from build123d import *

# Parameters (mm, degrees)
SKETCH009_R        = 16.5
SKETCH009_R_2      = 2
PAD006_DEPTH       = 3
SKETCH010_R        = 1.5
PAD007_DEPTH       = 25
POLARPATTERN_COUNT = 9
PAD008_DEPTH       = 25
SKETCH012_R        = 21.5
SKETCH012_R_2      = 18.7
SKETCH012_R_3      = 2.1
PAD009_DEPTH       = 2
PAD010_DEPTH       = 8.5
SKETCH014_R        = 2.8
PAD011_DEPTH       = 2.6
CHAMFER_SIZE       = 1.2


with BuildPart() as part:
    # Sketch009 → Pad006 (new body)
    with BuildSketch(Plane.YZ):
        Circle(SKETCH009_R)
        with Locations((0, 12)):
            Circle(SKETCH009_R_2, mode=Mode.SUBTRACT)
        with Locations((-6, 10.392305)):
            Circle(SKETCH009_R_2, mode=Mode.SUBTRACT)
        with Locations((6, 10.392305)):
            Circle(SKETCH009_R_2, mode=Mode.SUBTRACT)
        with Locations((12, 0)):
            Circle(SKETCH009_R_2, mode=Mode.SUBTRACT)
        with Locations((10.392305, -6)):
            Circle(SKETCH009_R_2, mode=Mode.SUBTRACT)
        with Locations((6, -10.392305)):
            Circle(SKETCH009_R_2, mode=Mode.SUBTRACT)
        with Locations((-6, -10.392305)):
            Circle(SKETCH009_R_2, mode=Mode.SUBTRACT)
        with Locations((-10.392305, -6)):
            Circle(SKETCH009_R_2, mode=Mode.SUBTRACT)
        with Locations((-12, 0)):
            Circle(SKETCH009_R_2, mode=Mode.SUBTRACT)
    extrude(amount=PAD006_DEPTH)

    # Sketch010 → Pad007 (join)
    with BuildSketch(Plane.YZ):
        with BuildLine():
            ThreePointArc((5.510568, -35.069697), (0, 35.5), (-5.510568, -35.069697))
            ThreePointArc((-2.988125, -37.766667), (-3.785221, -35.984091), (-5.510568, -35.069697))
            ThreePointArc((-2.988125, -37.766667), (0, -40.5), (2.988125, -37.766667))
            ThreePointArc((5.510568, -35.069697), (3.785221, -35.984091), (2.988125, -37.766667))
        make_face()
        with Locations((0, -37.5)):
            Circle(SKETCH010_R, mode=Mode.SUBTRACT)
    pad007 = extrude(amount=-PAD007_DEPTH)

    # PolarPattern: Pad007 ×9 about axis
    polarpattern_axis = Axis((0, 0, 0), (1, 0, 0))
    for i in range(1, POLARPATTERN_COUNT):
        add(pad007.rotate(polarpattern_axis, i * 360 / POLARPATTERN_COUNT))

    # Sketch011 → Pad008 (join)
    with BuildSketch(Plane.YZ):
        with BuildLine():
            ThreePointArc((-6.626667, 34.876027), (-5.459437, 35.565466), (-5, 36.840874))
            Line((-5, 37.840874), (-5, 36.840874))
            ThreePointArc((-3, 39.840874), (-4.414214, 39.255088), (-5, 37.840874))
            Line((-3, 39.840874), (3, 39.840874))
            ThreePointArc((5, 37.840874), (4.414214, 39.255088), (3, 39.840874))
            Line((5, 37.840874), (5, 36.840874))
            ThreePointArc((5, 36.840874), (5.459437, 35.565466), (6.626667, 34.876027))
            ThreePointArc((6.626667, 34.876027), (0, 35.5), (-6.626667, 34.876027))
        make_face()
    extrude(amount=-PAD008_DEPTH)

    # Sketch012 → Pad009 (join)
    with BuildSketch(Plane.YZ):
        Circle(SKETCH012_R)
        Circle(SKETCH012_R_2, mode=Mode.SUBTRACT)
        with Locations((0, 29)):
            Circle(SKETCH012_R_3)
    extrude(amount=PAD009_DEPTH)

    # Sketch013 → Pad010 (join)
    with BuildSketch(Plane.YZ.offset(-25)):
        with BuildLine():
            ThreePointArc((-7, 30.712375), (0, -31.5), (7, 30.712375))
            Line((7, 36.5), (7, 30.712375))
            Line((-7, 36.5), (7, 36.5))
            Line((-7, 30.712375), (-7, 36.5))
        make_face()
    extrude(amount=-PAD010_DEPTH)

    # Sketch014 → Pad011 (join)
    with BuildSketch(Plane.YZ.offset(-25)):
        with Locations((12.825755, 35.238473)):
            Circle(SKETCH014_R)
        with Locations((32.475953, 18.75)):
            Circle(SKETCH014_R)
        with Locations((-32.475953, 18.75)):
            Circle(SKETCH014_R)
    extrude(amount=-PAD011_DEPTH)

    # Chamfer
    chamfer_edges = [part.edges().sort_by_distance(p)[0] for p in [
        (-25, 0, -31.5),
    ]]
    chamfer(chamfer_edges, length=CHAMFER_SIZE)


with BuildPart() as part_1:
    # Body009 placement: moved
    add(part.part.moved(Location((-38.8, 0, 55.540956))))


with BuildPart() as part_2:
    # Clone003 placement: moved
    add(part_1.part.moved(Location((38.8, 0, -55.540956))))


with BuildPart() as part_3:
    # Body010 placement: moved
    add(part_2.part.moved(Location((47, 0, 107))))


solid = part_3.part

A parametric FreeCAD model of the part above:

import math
import FreeCAD as App
import Part
import Sketcher
from FreeCAD import Vector
Q = App.Units.Quantity


def edges_at(feature, points):
    """Names of the edges that pass closest to the given points."""
    edges = feature.Shape.Edges
    near = lambda p: min(range(len(edges)), key=lambda i: edges[i].distToShape(Part.Vertex(*p))[0])
    return sorted({f"Edge{near(p) + 1}" for p in points})

doc = App.newDocument("Part")
body = doc.addObject("PartDesign::Body", "Body")

# Sketch on YZ plane
sketch1 = body.newObject("Sketcher::SketchObject", "Sketch")
sketch1.AttachmentSupport = (doc.getObject("YZ_Plane"), [""])
sketch1.MapMode = "FlatFace"
sketch1.addGeometry([
    Part.Circle(Vector(0, 0, 0), Vector(0, 0, 1), 16.5),  # 0
    Part.Circle(Vector(-10.4, -6, 0), Vector(0, 0, 1), 2),  # 1
    Part.Circle(Vector(-6, -10.4, 0), Vector(0, 0, 1), 2),  # 2
    Part.Circle(Vector(-12, 0, 0), Vector(0, 0, 1), 2),  # 3
    Part.Circle(Vector(6, -10.4, 0), Vector(0, 0, 1), 2),  # 4
    Part.Circle(Vector(10.4, -6, 0), Vector(0, 0, 1), 2),  # 5
    Part.Circle(Vector(12, 0, 0), Vector(0, 0, 1), 2),  # 6
    Part.Circle(Vector(-6, 10.4, 0), Vector(0, 0, 1), 2),  # 7
    Part.Circle(Vector(6, 10.4, 0), Vector(0, 0, 1), 2),  # 8
    Part.Circle(Vector(0, 12, 0), Vector(0, 0, 1), 2),  # 9
], False)
sketch1.addConstraint([
    Sketcher.Constraint("Coincident", 0, 3, -1, 1),
    Sketcher.Constraint("Equal", 1, 2),
    Sketcher.Constraint("Equal", 2, 3),
    Sketcher.Constraint("Equal", 3, 4),
    Sketcher.Constraint("Equal", 4, 5),
    Sketcher.Constraint("Equal", 5, 6),
    Sketcher.Constraint("Equal", 6, 7),
    Sketcher.Constraint("Equal", 7, 8),
    Sketcher.Constraint("Equal", 8, 9),
    Sketcher.Constraint("Symmetric", 3, 3, 6, 3, -1, 1),
    Sketcher.Constraint("Symmetric", 4, 3, 7, 3, -1, 1),
    Sketcher.Constraint("Symmetric", 2, 3, 8, 3, -1, 1),
    Sketcher.Constraint("Symmetric", 2, 3, 4, 3, -2),
    Sketcher.Constraint("Symmetric", 1, 3, 5, 3, -2),
    Sketcher.Constraint("PointOnObject", 3, 3, -1),
    Sketcher.Constraint("PointOnObject", 9, 3, -2),
    Sketcher.Constraint("Diameter", 0, Q("33 mm")),
    Sketcher.Constraint("Diameter", 1, Q("4 mm")),
    Sketcher.Constraint("DistanceY", 1, 3, -1, 1, Q("6 mm")),
    Sketcher.Constraint("DistanceX", 2, 3, -1, 1, Q("6 mm")),
    Sketcher.Constraint("DistanceX", 3, 3, -1, 1, Q("12 mm")),
    Sketcher.Constraint("DistanceY", -1, 1, 9, 3, Q("12 mm")),
    Sketcher.Constraint("DistanceX", 1, 3, 5, 3, Q("20.78461 mm")),
    Sketcher.Constraint("DistanceY", 2, 3, 7, 3, Q("20.78461 mm")),
])
pad1 = body.newObject("PartDesign::Pad", "Pad")
pad1.Profile = sketch1
pad1.Length = 3

# Sketch on YZ plane
sketch2 = body.newObject("Sketcher::SketchObject", "Sketch001")
sketch2.AttachmentSupport = (doc.getObject("YZ_Plane"), [""])
sketch2.MapMode = "FlatFace"
sketch2.addGeometry([
    Part.ArcOfCircle(Part.Circle(Vector(0, 0, 0), Vector(0, 0, 1), 35.5), math.radians(-81), math.radians(261)),  # 0
    Part.ArcOfCircle(Part.Circle(Vector(-6, -38, 0), Vector(0, 0, 1), 3), math.radians(5), math.radians(81)),  # 1
    Part.ArcOfCircle(Part.Circle(Vector(0, -37.5, 0), Vector(0, 0, 1), 3), math.radians(-175), math.radians(-5)),  # 2
    Part.ArcOfCircle(Part.Circle(Vector(6, -38, 0), Vector(0, 0, 1), 3), math.radians(99), math.radians(175)),  # 3
    Part.Circle(Vector(0, -37.5, 0), Vector(0, 0, 1), 1.5),  # 4
], False)
sketch2.addConstraint([
    Sketcher.Constraint("Tangent", 0, 2, 1, 2),
    Sketcher.Constraint("Tangent", 1, 1, 2, 1),
    Sketcher.Constraint("Tangent", 2, 2, 3, 2),
    Sketcher.Constraint("Tangent", 3, 1, 0, 1),
    Sketcher.Constraint("Coincident", 0, 3, -1, 1),
    Sketcher.Constraint("Coincident", 4, 3, 2, 3),
    Sketcher.Constraint("Equal", 1, 2),
    Sketcher.Constraint("Equal", 2, 3),
    Sketcher.Constraint("PointOnObject", 2, 3, -2),
    Sketcher.Constraint("Diameter", 4, Q("3 mm")),
    Sketcher.Constraint("Radius", 1, Q("2.999999 mm")),
    Sketcher.Constraint("Radius", 0, Q("35.5 mm")),
    Sketcher.Constraint("DistanceY", 2, 3, -1, 1, Q("37.5 mm")),
])
pad2 = body.newObject("PartDesign::Pad", "Pad001")
pad2.Profile = sketch2
pad2.Length = 25
pad2.Reversed = True
doc.recompute()

polarpattern = body.newObject("PartDesign::PolarPattern", "PolarPattern")
polarpattern.Originals = [pad2]
polarpattern.Axis = (doc.getObject("X_Axis"), [""])
polarpattern.Angle = 360
polarpattern.Occurrences = 9
body.Tip = polarpattern

# Sketch on YZ plane
sketch3 = body.newObject("Sketcher::SketchObject", "Sketch002")
sketch3.AttachmentSupport = (doc.getObject("YZ_Plane"), [""])
sketch3.MapMode = "FlatFace"
sketch3.addGeometry([
    Part.ArcOfCircle(Part.Circle(Vector(-7, 36.8, 0), Vector(0, 0, 1), 2), math.radians(-79), math.radians(0)),  # 0
    Part.ArcOfCircle(Part.Circle(Vector(0, 0, 0), Vector(0, 0, 1), 35.5), math.radians(79), math.radians(101)),  # 1
    Part.ArcOfCircle(Part.Circle(Vector(7, 36.8, 0), Vector(0, 0, 1), 2), math.radians(-180), math.radians(-101)),  # 2
    Part.LineSegment(Vector(5, 36.8, 0), Vector(5, 37.8, 0)),  # 3
    Part.ArcOfCircle(Part.Circle(Vector(3, 37.8, 0), Vector(0, 0, 1), 2), math.radians(0), math.radians(90)),  # 4
    Part.LineSegment(Vector(3, 39.8, 0), Vector(-3, 39.8, 0)),  # 5
    Part.ArcOfCircle(Part.Circle(Vector(-3, 37.8, 0), Vector(0, 0, 1), 2), math.radians(90), math.radians(180)),  # 6
    Part.LineSegment(Vector(-5, 37.8, 0), Vector(-5, 36.8, 0)),  # 7
], False)
sketch3.addConstraint([
    Sketcher.Constraint("Tangent", 0, 1, 1, 2),
    Sketcher.Constraint("Tangent", 1, 1, 2, 2),
    Sketcher.Constraint("Tangent", 2, 1, 3, 1),
    Sketcher.Constraint("Tangent", 3, 2, 4, 1),
    Sketcher.Constraint("Tangent", 4, 2, 5, 1),
    Sketcher.Constraint("Tangent", 5, 2, 6, 1),
    Sketcher.Constraint("Tangent", 6, 2, 7, 1),
    Sketcher.Constraint("Tangent", 7, 2, 0, 2),
    Sketcher.Constraint("Vertical", 3),
    Sketcher.Constraint("Horizontal", 5),
    Sketcher.Constraint("Vertical", 7),
    Sketcher.Constraint("Equal", 0, 2),
    Sketcher.Constraint("Equal", 4, 6),
    Sketcher.Constraint("Symmetric", 0, 3, 2, 3, -2),
    Sketcher.Constraint("Radius", 0, Q("2.000001 mm")),
    Sketcher.Constraint("Radius", 4, Q("1.999999 mm")),
    Sketcher.Constraint("DistanceX", 5, 2, 5, 1, Q("6 mm")),
    Sketcher.Constraint("DistanceY", 3, 1, 3, 2, Q("1 mm")),
    Sketcher.Constraint("Radius", 1, Q("35.49998 mm")),
    Sketcher.Constraint("DistanceY", -1, 1, 0, 3, Q("36.840874 mm")),
])
pad3 = body.newObject("PartDesign::Pad", "Pad002")
pad3.Profile = sketch3
pad3.Length = 25
pad3.Reversed = True

# Sketch on YZ plane
sketch4 = body.newObject("Sketcher::SketchObject", "Sketch003")
sketch4.AttachmentSupport = (doc.getObject("YZ_Plane"), [""])
sketch4.MapMode = "FlatFace"
sketch4.addGeometry([
    Part.Circle(Vector(0, 0, 0), Vector(0, 0, 1), 21.5),
    Part.Circle(Vector(0, 0, 0), Vector(0, 0, 1), 18.7),
    Part.Circle(Vector(0, 29, 0), Vector(0, 0, 1), 2.1),
], False)
sketch4.addConstraint([
    Sketcher.Constraint("Coincident", 0, 3, -1, 1),
    Sketcher.Constraint("Coincident", 1, 3, -1, 1),
    Sketcher.Constraint("PointOnObject", 2, 3, -2),
    Sketcher.Constraint("Diameter", 0, Q("43 mm")),
    Sketcher.Constraint("Diameter", 1, Q("37.4 mm")),
    Sketcher.Constraint("Diameter", 2, Q("4.2 mm")),
    Sketcher.Constraint("DistanceY", -1, 1, 2, 3, Q("29 mm")),
])
pad4 = body.newObject("PartDesign::Pad", "Pad003")
pad4.Profile = sketch4
pad4.Length = 2

# Sketch on YZ plane
sketch5 = body.newObject("Sketcher::SketchObject", "Sketch004")
sketch5.AttachmentSupport = (doc.getObject("YZ_Plane"), [""])
sketch5.MapMode = "FlatFace"
sketch5.AttachmentOffset = App.Placement(Vector(0, 0, -25), App.Rotation())
sketch5.addGeometry([
    Part.ArcOfCircle(Part.Circle(Vector(0, 0, 0), Vector(0, 0, 1), 31), math.radians(103), math.radians(437)),
    Part.LineSegment(Vector(7, 31, 0), Vector(7, 36, 0)),
    Part.LineSegment(Vector(7, 36, 0), Vector(-7, 36, 0)),
    Part.LineSegment(Vector(-7, 36, 0), Vector(-7, 31, 0)),
], False)
sketch5.addConstraint([
    Sketcher.Constraint("Coincident", 0, 2, 1, 1),
    Sketcher.Constraint("Coincident", 1, 2, 2, 1),
    Sketcher.Constraint("Coincident", 2, 2, 3, 1),
    Sketcher.Constraint("Coincident", 3, 2, 0, 1),
    Sketcher.Constraint("Vertical", 1),
    Sketcher.Constraint("Horizontal", 2),
    Sketcher.Constraint("Vertical", 3),
    Sketcher.Constraint("Coincident", 0, 3, -1, 1),
    Sketcher.Constraint("Horizontal", 0, 2, 3, 2),
    Sketcher.Constraint("Radius", 0, Q("31.5 mm")),
    Sketcher.Constraint("DistanceX", 2, 2, 2, 1, Q("14 mm")),
    Sketcher.Constraint("DistanceY", -1, 1, 1, 2, Q("36.5 mm")),
])
pad5 = body.newObject("PartDesign::Pad", "Pad004")
pad5.Profile = sketch5
pad5.Length = 8.5
pad5.Reversed = True

# Sketch on YZ plane
sketch6 = body.newObject("Sketcher::SketchObject", "Sketch005")
sketch6.AttachmentSupport = (doc.getObject("YZ_Plane"), [""])
sketch6.MapMode = "FlatFace"
sketch6.AttachmentOffset = App.Placement(Vector(0, 0, -25), App.Rotation())
sketch6.addGeometry([
    Part.Circle(Vector(12.8, 35.2, 0), Vector(0, 0, 1), 2.8),
    Part.Circle(Vector(32.5, 18.8, 0), Vector(0, 0, 1), 2.8),
    Part.Circle(Vector(-32.5, 18.8, 0), Vector(0, 0, 1), 2.8),
], False)
sketch6.addConstraint([
    Sketcher.Constraint("Equal", 0, 1),
    Sketcher.Constraint("Equal", 1, 2),
    Sketcher.Constraint("Symmetric", 1, 3, 2, 3, -2),
    Sketcher.Constraint("Diameter", 0, Q("5.6 mm")),
    Sketcher.Constraint("DistanceY", -1, 1, 1, 3, Q("18.75 mm")),
    Sketcher.Constraint("DistanceX", -1, 1, 0, 3, Q("12.825755 mm")),
    Sketcher.Constraint("DistanceY", -1, 1, 0, 3, Q("35.238473 mm")),
    Sketcher.Constraint("DistanceX", -1, 1, 1, 3, Q("32.475953 mm")),
])
pad6 = body.newObject("PartDesign::Pad", "Pad005")
pad6.Profile = sketch6
pad6.Length = 2.6
pad6.Reversed = True
doc.recompute()

chamfer = body.newObject("PartDesign::Chamfer", "Chamfer")
chamfer.Base = (pad6, edges_at(pad6, [(-25, 0, -31.5)]))
chamfer.Size = 1.2
body2 = doc.addObject("PartDesign::Body", "Body001")
doc.recompute()

body.Placement = App.Placement(Vector(-38.8, 0, 55.540956), App.Rotation(Vector(0, 0, 1), 0))
boolean = body2.newObject("PartDesign::Boolean", "Boolean")
boolean.Type = "Fuse"
boolean.addObjects([body])
body3 = doc.addObject("PartDesign::Body", "Body002")
doc.recompute()

body2.Placement = App.Placement(Vector(38.8, 0, -55.540956), App.Rotation(Vector(0, 0, 1), 0))
boolean2 = body3.newObject("PartDesign::Boolean", "Boolean001")
boolean2.Type = "Fuse"
boolean2.addObjects([body2])
body4 = doc.addObject("PartDesign::Body", "Body003")
doc.recompute()

body3.Placement = App.Placement(Vector(47, 0, 107), App.Rotation(Vector(0, 0, 1), 0))
boolean3 = body4.newObject("PartDesign::Boolean", "Boolean002")
boolean3.Type = "Fuse"
boolean3.addObjects([body3])

doc.recompute()
